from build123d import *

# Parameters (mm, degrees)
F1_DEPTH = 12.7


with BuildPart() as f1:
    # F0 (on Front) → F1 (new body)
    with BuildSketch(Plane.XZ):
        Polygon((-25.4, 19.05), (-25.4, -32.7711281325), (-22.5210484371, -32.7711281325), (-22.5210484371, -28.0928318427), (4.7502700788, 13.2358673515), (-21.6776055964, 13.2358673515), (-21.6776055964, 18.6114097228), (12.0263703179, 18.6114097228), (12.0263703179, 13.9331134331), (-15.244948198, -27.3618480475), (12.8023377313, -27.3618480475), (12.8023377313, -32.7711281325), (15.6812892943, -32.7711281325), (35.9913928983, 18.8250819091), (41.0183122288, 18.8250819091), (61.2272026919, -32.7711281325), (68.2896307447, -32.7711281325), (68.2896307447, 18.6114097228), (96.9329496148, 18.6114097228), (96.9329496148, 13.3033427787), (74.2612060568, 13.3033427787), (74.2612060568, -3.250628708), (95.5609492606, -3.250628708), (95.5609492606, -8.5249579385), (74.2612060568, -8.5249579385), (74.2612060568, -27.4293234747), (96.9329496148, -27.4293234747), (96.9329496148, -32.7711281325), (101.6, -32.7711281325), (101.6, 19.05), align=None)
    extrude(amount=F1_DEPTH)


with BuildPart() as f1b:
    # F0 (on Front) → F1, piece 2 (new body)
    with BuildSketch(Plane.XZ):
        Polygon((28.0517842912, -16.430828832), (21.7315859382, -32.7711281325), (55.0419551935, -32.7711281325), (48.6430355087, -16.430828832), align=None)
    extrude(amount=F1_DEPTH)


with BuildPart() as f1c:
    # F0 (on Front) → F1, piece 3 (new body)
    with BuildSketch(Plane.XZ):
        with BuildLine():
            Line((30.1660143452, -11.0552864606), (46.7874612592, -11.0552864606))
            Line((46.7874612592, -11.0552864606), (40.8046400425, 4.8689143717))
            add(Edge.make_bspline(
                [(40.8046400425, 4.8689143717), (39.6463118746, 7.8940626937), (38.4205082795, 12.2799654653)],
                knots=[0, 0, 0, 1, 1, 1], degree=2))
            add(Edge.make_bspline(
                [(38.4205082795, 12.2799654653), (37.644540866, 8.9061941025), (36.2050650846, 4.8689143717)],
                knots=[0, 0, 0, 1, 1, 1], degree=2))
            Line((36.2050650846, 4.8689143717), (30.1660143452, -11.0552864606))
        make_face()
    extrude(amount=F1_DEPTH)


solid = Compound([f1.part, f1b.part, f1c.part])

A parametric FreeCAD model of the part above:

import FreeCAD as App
import Part
import Sketcher
Q = App.Units.Quantity

doc = App.newDocument("Part")
body = doc.addObject("PartDesign::Body", "Body")

# Sketch on XZ plane
sketch1 = body.newObject("Sketcher::SketchObject", "Sketch")
sketch1.AttachmentSupport = (doc.getObject("XZ_Plane"), [""])
sketch1.MapMode = "FlatFace"
sketch1.addGeometry(Part.LineSegment(App.Vector(-25.4, 19.05, 0), App.Vector(-25.4, -32.771128, 0)), False)
sketch1.addGeometry(Part.LineSegment(App.Vector(-25.4, -32.771128, 0), App.Vector(-22.521048, -32.771128, 0)), False)
sketch1.addGeometry(Part.LineSegment(App.Vector(-22.521048, -32.771128, 0), App.Vector(-22.521048, -28.092832, 0)), False)
sketch1.addGeometry(Part.LineSegment(App.Vector(-22.521048, -28.092832, 0), App.Vector(4.75027, 13.235867, 0)), False)
sketch1.addGeometry(Part.LineSegment(App.Vector(4.75027, 13.235867, 0), App.Vector(-21.677606, 13.235867, 0)), False)
sketch1.addGeometry(Part.LineSegment(App.Vector(-21.677606, 13.235867, 0), App.Vector(-21.677606, 18.61141, 0)), False)
sketch1.addGeometry(Part.LineSegment(App.Vector(-21.677606, 18.61141, 0), App.Vector(12.02637, 18.61141, 0)), False)
sketch1.addGeometry(Part.LineSegment(App.Vector(12.02637, 18.61141, 0), App.Vector(12.02637, 13.933113, 0)), False)
sketch1.addGeometry(Part.LineSegment(App.Vector(12.02637, 13.933113, 0), App.Vector(-15.244948, -27.361848, 0)), False)
sketch1.addGeometry(Part.LineSegment(App.Vector(-15.244948, -27.361848, 0), App.Vector(12.802338, -27.361848, 0)), False)
sketch1.addGeometry(Part.LineSegment(App.Vector(12.802338, -27.361848, 0), App.Vector(12.802338, -32.771128, 0)), False)
sketch1.addGeometry(Part.LineSegment(App.Vector(12.802338, -32.771128, 0), App.Vector(15.681289, -32.771128, 0)), False)
sketch1.addGeometry(Part.LineSegment(App.Vector(15.681289, -32.771128, 0), App.Vector(35.991393, 18.825082, 0)), False)
sketch1.addGeometry(Part.LineSegment(App.Vector(35.991393, 18.825082, 0), App.Vector(41.018312, 18.825082, 0)), False)
sketch1.addGeometry(Part.LineSegment(App.Vector(41.018312, 18.825082, 0), App.Vector(61.227203, -32.771128, 0)), False)
sketch1.addGeometry(Part.LineSegment(App.Vector(61.227203, -32.771128, 0), App.Vector(68.289631, -32.771128, 0)), False)
sketch1.addGeometry(Part.LineSegment(App.Vector(68.289631, -32.771128, 0), App.Vector(68.289631, 18.61141, 0)), False)
sketch1.addGeometry(Part.LineSegment(App.Vector(68.289631, 18.61141, 0), App.Vector(96.93295, 18.61141, 0)), False)
sketch1.addGeometry(Part.LineSegment(App.Vector(96.93295, 18.61141, 0), App.Vector(96.93295, 13.303343, 0)), False)
sketch1.addGeometry(Part.LineSegment(App.Vector(96.93295, 13.303343, 0), App.Vector(74.261206, 13.303343, 0)), False)
sketch1.addGeometry(Part.LineSegment(App.Vector(74.261206, 13.303343, 0), App.Vector(74.261206, -3.250629, 0)), False)
sketch1.addGeometry(Part.LineSegment(App.Vector(74.261206, -3.250629, 0), App.Vector(95.560949, -3.250629, 0)), False)
sketch1.addGeometry(Part.LineSegment(App.Vector(95.560949, -3.250629, 0), App.Vector(95.560949, -8.524958, 0)), False)
sketch1.addGeometry(Part.LineSegment(App.Vector(95.560949, -8.524958, 0), App.Vector(74.261206, -8.524958, 0)), False)
sketch1.addGeometry(Part.LineSegment(App.Vector(74.261206, -8.524958, 0), App.Vector(74.261206, -27.429323, 0)), False)
sketch1.addGeometry(Part.LineSegment(App.Vector(74.261206, -27.429323, 0), App.Vector(96.93295, -27.429323, 0)), False)
sketch1.addGeometry(Part.LineSegment(App.Vector(96.93295, -27.429323, 0), App.Vector(96.93295, -32.771128, 0)), False)
sketch1.addGeometry(Part.LineSegment(App.Vector(96.93295, -32.771128, 0), App.Vector(101.6, -32.771128, 0)), False)
sketch1.addGeometry(Part.LineSegment(App.Vector(101.6, -32.771128, 0), App.Vector(101.6, 19.05, 0)), False)
sketch1.addGeometry(Part.LineSegment(App.Vector(101.6, 19.05, 0), App.Vector(-25.4, 19.05, 0)), False)
sketch1.addConstraint(Sketcher.Constraint("Coincident", 0, 2, 1, 1))
sketch1.addConstraint(Sketcher.Constraint("Coincident", 1, 2, 2, 1))
sketch1.addConstraint(Sketcher.Constraint("Coincident", 2, 2, 3, 1))
sketch1.addConstraint(Sketcher.Constraint("Coincident", 3, 2, 4, 1))
sketch1.addConstraint(Sketcher.Constraint("Coincident", 4, 2, 5, 1))
sketch1.addConstraint(Sketcher.Constraint("Coincident", 5, 2, 6, 1))
sketch1.addConstraint(Sketcher.Constraint("Coincident", 6, 2, 7, 1))
sketch1.addConstraint(Sketcher.Constraint("Coincident", 7, 2, 8, 1))
sketch1.addConstraint(Sketcher.Constraint("Coincident", 8, 2, 9, 1))
sketch1.addConstraint(Sketcher.Constraint("Coincident", 9, 2, 10, 1))
sketch1.addConstraint(Sketcher.Constraint("Coincident", 10, 2, 11, 1))
sketch1.addConstraint(Sketcher.Constraint("Coincident", 11, 2, 12, 1))
sketch1.addConstraint(Sketcher.Constraint("Coincident", 12, 2, 13, 1))
sketch1.addConstraint(Sketcher.Constraint("Coincident", 13, 2, 14, 1))
sketch1.addConstraint(Sketcher.Constraint("Coincident", 14, 2, 15, 1))
sketch1.addConstraint(Sketcher.Constraint("Coincident", 15, 2, 16, 1))
sketch1.addConstraint(Sketcher.Constraint("Coincident", 16, 2, 17, 1))
sketch1.addConstraint(Sketcher.Constraint("Coincident", 17, 2, 18, 1))
sketch1.addConstraint(Sketcher.Constraint("Coincident", 18, 2, 19, 1))
sketch1.addConstraint(Sketcher.Constraint("Coincident", 19, 2, 20, 1))
sketch1.addConstraint(Sketcher.Constraint("Coincident", 20, 2, 21, 1))
sketch1.addConstraint(Sketcher.Constraint("Coincident", 21, 2, 22, 1))
sketch1.addConstraint(Sketcher.Constraint("Coincident", 22, 2, 23, 1))
sketch1.addConstraint(Sketcher.Constraint("Coincident", 23, 2, 24, 1))
sketch1.addConstraint(Sketcher.Constraint("Coincident", 24, 2, 25, 1))
sketch1.addConstraint(Sketcher.Constraint("Coincident", 25, 2, 26, 1))
sketch1.addConstraint(Sketcher.Constraint("Coincident", 26, 2, 27, 1))
sketch1.addConstraint(Sketcher.Constraint("Coincident", 27, 2, 28, 1))
sketch1.addConstraint(Sketcher.Constraint("Coincident", 28, 2, 29, 1))
sketch1.addConstraint(Sketcher.Constraint("Coincident", 29, 2, 0, 1))
sketch1.addConstraint(Sketcher.Constraint("Vertical", 0))
sketch1.addConstraint(Sketcher.Constraint("Horizontal", 1))
sketch1.addConstraint(Sketcher.Constraint("Vertical", 2))
sketch1.addConstraint(Sketcher.Constraint("Horizontal", 4))
sketch1.addConstraint(Sketcher.Constraint("Vertical", 5))
sketch1.addConstraint(Sketcher.Constraint("Horizontal", 6))
sketch1.addConstraint(Sketcher.Constraint("Vertical", 7))
sketch1.addConstraint(Sketcher.Constraint("Horizontal", 9))
sketch1.addConstraint(Sketcher.Constraint("Vertical", 10))
sketch1.addConstraint(Sketcher.Constraint("Horizontal", 11))
sketch1.addConstraint(Sketcher.Constraint("Horizontal", 13))
sketch1.addConstraint(Sketcher.Constraint("Horizontal", 15))
sketch1.addConstraint(Sketcher.Constraint("Vertical", 16))
sketch1.addConstraint(Sketcher.Constraint("Horizontal", 17))
sketch1.addConstraint(Sketcher.Constraint("Vertical", 18))
sketch1.addConstraint(Sketcher.Constraint("Horizontal", 19))
sketch1.addConstraint(Sketcher.Constraint("Vertical", 20))
sketch1.addConstraint(Sketcher.Constraint("Horizontal", 21))
sketch1.addConstraint(Sketcher.Constraint("Vertical", 22))
sketch1.addConstraint(Sketcher.Constraint("Horizontal", 23))
sketch1.addConstraint(Sketcher.Constraint("Vertical", 24))
sketch1.addConstraint(Sketcher.Constraint("Horizontal", 25))
sketch1.addConstraint(Sketcher.Constraint("Vertical", 26))
sketch1.addConstraint(Sketcher.Constraint("Horizontal", 27))
sketch1.addConstraint(Sketcher.Constraint("Vertical", 28))
sketch1.addConstraint(Sketcher.Constraint("Horizontal", 29))
sketch1.addConstraint(Sketcher.Constraint("Horizontal", 1, 2, 10, 2))
sketch1.addConstraint(Sketcher.Constraint("Horizontal", 11, 2, 14, 2))
sketch1.addConstraint(Sketcher.Constraint("Horizontal", 6, 2, 16, 2))
sketch1.addConstraint(Sketcher.Constraint("Horizontal", 15, 2, 26, 2))
sketch1.addConstraint(Sketcher.Constraint("Vertical", 20, 2, 23, 2))
sketch1.addConstraint(Sketcher.Constraint("Vertical", 18, 2, 25, 2))
sketch1.addConstraint(Sketcher.Constraint("Equal", 1, 11))
sketch1.addConstraint(Sketcher.Constraint("Equal", 2, 7))
sketch1.addConstraint(Sketcher.Constraint("DistanceX", 29, 2, 29, 1, Q("5 in")))
sketch1.addConstraint(Sketcher.Constraint("DistanceX", 0, 2, -1, 1, Q("1 in")))
sketch1.addConstraint(Sketcher.Constraint("DistanceY", -1, 1, 28, 2, Q("0.75 in")))
sketch1.addConstraint(Sketcher.Constraint("Distance", 12, 55.4497))
sketch1.addConstraint(Sketcher.Constraint("DistanceX", 1, 1, 1, 2, 2.878952))
sketch1.addConstraint(Sketcher.Constraint("DistanceX", 13, 1, 13, 2, 5.026919))
sketch1.addConstraint(Sketcher.Constraint("DistanceX", 15, 1, 15, 2, 7.062428))
sketch1.addConstraint(Sketcher.Constraint("DistanceX", 17, 1, 17, 2, 28.643319))
sketch1.addConstraint(Sketcher.Constraint("DistanceX", 27, 1, 27, 2, 4.66705))
sketch1.addConstraint(Sketcher.Constraint("DistanceY", 0, 2, 0, 1, 51.821128))
sketch1.addConstraint(Sketcher.Constraint("DistanceY", 10, 2, 10, 1, 5.40928))
sketch1.addConstraint(Sketcher.Constraint("DistanceY", 20, 2, 20, 1, 16.553971))
sketch1.addConstraint(Sketcher.Constraint("DistanceY", 22, 2, 22, 1, 5.274329))
sketch1.addConstraint(Sketcher.Constraint("DistanceY", 2, 2, 3, 2, 41.328699))
sketch1.addConstraint(Sketcher.Constraint("DistanceX", 3, 2, 6, 2, 7.2761))
sketch1.addConstraint(Sketcher.Constraint("DistanceX", 2, 2, 8, 2, 7.2761))
sketch1.addConstraint(Sketcher.Constraint("DistanceY", 15, 2, 20, 2, 29.520499))
sketch1.addConstraint(Sketcher.Constraint("DistanceX", 21, 2, 18, 2, 1.372))
sketch1.addConstraint(Sketcher.Constraint("Distance", 8, 49.487359))
sketch1.addConstraint(Sketcher.Constraint("DistanceX", 4, 2, 4, 1, 26.427876))
sketch1.addConstraint(Sketcher.Constraint("DistanceX", 9, 1, 9, 2, 28.047286))
sketch1.addConstraint(Sketcher.Constraint("DistanceX", 19, 2, 19, 1, 22.671744))
sketch1.addConstraint(Sketcher.Constraint("DistanceY", 2, 1, 2, 2, 4.678296))
sketch1.addConstraint(Sketcher.Constraint("DistanceY", 5, 1, 5, 2, 5.375542))
sketch1.addConstraint(Sketcher.Constraint("DistanceY", 24, 2, 24, 1, 18.904366))
sketch1.addConstraint(Sketcher.Constraint("DistanceY", -1, 1, 12, 2, 18.825082))
pad1 = body.newObject("PartDesign::Pad", "Pad")
pad1.Profile = sketch1
pad1.Length = Q("0.5 in")
body2 = doc.addObject("PartDesign::Body", "Body001")

# Sketch on XZ plane
sketch2 = body2.newObject("Sketcher::SketchObject", "Sketch001")
sketch2.AttachmentSupport = (doc.getObject("XZ_Plane001"), [""])
sketch2.MapMode = "FlatFace"
sketch2.addGeometry(Part.LineSegment(App.Vector(28.051784, -16.430829, 0), App.Vector(21.731586, -32.771128, 0)), False)
sketch2.addGeometry(Part.LineSegment(App.Vector(21.731586, -32.771128, 0), App.Vector(55.041955, -32.771128, 0)), False)
sketch2.addGeometry(Part.LineSegment(App.Vector(55.041955, -32.771128, 0), App.Vector(48.643036, -16.430829, 0)), False)
sketch2.addGeometry(Part.LineSegment(App.Vector(48.643036, -16.430829, 0), App.Vector(28.051784, -16.430829, 0)), False)
sketch2.addConstraint(Sketcher.Constraint("Coincident", 0, 2, 1, 1))
sketch2.addConstraint(Sketcher.Constraint("Coincident", 1, 2, 2, 1))
sketch2.addConstraint(Sketcher.Constraint("Coincident", 2, 2, 3, 1))
sketch2.addConstraint(Sketcher.Constraint("Coincident", 3, 2, 0, 1))
sketch2.addConstraint(Sketcher.Constraint("Horizontal", 1))
sketch2.addConstraint(Sketcher.Constraint("Horizontal", 3))
sketch2.addConstraint(Sketcher.Constraint("DistanceX", 1, 1, 1, 2, 33.310369))
sketch2.addConstraint(Sketcher.Constraint("DistanceX", 3, 2, 3, 1, 20.591251))
sketch2.addConstraint(Sketcher.Constraint("DistanceY", 1, 2, 2, 2, 16.340299))
sketch2.addConstraint(Sketcher.Constraint("DistanceX", 0, 2, 3, 2, 6.320198))
sketch2.addConstraint(Sketcher.Constraint("DistanceY", 0, 2, -1, 1, 32.771128))
sketch2.addConstraint(Sketcher.Constraint("DistanceX", -1, 1, 0, 2, 21.731586))
pad2 = body2.newObject("PartDesign::Pad", "Pad001")
pad2.Profile = sketch2
pad2.Length = Q("0.5 in")
body3 = doc.addObject("PartDesign::Body", "Body002")

# Sketch on XZ plane
sketch3 = body3.newObject("Sketcher::SketchObject", "Sketch002")
sketch3.AttachmentSupport = (doc.getObject("XZ_Plane002"), [""])
sketch3.MapMode = "FlatFace"
sketch3.addGeometry(Part.LineSegment(App.Vector(30.166014, -11.055286, 0), App.Vector(46.787461, -11.055286, 0)), False)
sketch3.addGeometry(Part.LineSegment(App.Vector(46.787461, -11.055286, 0), App.Vector(40.80464, 4.868914, 0)), False)
sketch3.addGeometry(Part.BSplineCurve([App.Vector(40.80464, 4.868914, 0), App.Vector(39.646312, 7.894063, 0), App.Vector(38.420508, 12.279965, 0)], [3, 3], [0, 1], False, 2, [1, 1, 1], False), False)
sketch3.addGeometry(Part.BSplineCurve([App.Vector(38.420508, 12.279965, 0), App.Vector(37.644541, 8.906194, 0), App.Vector(36.205065, 4.868914, 0)], [3, 3], [0, 1], False, 2, [1, 1, 1], False), False)
sketch3.addGeometry(Part.LineSegment(App.Vector(36.205065, 4.868914, 0), App.Vector(30.166014, -11.055286, 0)), False)
sketch3.addConstraint(Sketcher.Constraint("Block", 2))
sketch3.addConstraint(Sketcher.Constraint("Block", 3))
sketch3.addConstraint(Sketcher.Constraint("Coincident", 0, 2, 1, 1))
sketch3.addConstraint(Sketcher.Constraint("Coincident", 1, 2, 2, 1))
sketch3.addConstraint(Sketcher.Constraint("Coincident", 3, 2, 4, 1))
sketch3.addConstraint(Sketcher.Constraint("Coincident", 4, 2, 0, 1))
sketch3.addConstraint(Sketcher.Constraint("Horizontal", 0))
sketch3.addConstraint(Sketcher.Constraint("DistanceY", 0, 2, 1, 2, 15.924201))
sketch3.addConstraint(Sketcher.Constraint("DistanceX", 0, 1, 0, 2, 16.621447))
sketch3.addConstraint(Sketcher.Constraint("DistanceX", -1, 1, 0, 2, 46.787461))
pad3 = body3.newObject("PartDesign::Pad", "Pad002")
pad3.Profile = sketch3
pad3.Length = Q("0.5 in")

doc.recompute()
